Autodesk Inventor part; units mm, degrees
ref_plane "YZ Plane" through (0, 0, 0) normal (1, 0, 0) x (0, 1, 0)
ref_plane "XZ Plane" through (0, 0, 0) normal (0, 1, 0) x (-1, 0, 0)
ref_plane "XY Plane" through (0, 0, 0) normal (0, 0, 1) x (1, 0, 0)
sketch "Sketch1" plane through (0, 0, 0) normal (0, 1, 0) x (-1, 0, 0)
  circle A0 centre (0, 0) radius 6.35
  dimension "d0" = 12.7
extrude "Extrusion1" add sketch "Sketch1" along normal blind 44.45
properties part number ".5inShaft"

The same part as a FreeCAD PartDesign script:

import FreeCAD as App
import Part
import Sketcher
from FreeCAD import Vector
Q = App.Units.Quantity

doc = App.newDocument("Part")
body = doc.addObject("PartDesign::Body", "Body")

# Sketch on XZ plane
sketch1 = body.newObject("Sketcher::SketchObject", "Sketch")
sketch1.AttachmentSupport = (doc.getObject("XZ_Plane"), [""])
sketch1.MapMode = "FlatFace"
sketch1.addGeometry(Part.Circle(Vector(0, 0, 0), Vector(0, 0, 1), 6), False)
sketch1.addConstraint([
    Sketcher.Constraint("Coincident", 0, 3, -1, 1),
    Sketcher.Constraint("Diameter", 0, Q("0.5 in")),
])
pad1 = body.newObject("PartDesign::Pad", "Pad")
pad1.Profile = sketch1
pad1.Length = Q("1.75 in")
pad1.Reversed = True

doc.recompute()
